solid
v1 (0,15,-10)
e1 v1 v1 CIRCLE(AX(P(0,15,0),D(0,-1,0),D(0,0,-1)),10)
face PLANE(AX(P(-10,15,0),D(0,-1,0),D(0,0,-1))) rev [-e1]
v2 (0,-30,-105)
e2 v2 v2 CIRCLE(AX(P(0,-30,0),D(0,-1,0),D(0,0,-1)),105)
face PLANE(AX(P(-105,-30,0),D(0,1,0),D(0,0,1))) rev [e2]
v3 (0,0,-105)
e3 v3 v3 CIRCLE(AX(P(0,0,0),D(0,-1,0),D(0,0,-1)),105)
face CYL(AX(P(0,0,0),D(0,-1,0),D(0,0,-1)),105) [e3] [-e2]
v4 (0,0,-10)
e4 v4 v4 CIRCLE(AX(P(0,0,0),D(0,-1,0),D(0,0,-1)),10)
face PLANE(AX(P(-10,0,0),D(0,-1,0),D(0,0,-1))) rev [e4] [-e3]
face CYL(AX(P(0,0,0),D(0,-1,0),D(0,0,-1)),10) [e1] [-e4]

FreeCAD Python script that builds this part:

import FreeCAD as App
import Part
import Sketcher

V = App.Vector
Q = App.Units.Quantity

doc = App.newDocument("Part")
body = doc.addObject("PartDesign::Body", "Body")

# Sketch on XY plane
sketch1 = body.newObject("Sketcher::SketchObject", "Sketch")
sketch1.AttachmentSupport = (doc.getObject("XY_Plane"), [""])
sketch1.MapMode = "FlatFace"
sketch1.addGeometry(Part.LineSegment(V(-10, 0, 0), V(-105, 0, 0)), False)
sketch1.addGeometry(Part.LineSegment(V(-105, 0, 0), V(-105, -30, 0)), False)
sketch1.addGeometry(Part.LineSegment(V(-105, -30, 0), V(0, -30, 0)), False)
sketch1.addGeometry(Part.LineSegment(V(0, -30, 0), V(0, 15, 0)), False)
sketch1.addGeometry(Part.LineSegment(V(0, 15, 0), V(-10, 15, 0)), False)
sketch1.addGeometry(Part.LineSegment(V(-10, 15, 0), V(-10, 0, 0)), False)
sketch1.addConstraint(Sketcher.Constraint("Coincident", 0, 2, 1, 1))
sketch1.addConstraint(Sketcher.Constraint("Coincident", 1, 2, 2, 1))
sketch1.addConstraint(Sketcher.Constraint("Coincident", 2, 2, 3, 1))
sketch1.addConstraint(Sketcher.Constraint("Coincident", 3, 2, 4, 1))
sketch1.addConstraint(Sketcher.Constraint("Coincident", 4, 2, 5, 1))
sketch1.addConstraint(Sketcher.Constraint("Coincident", 5, 2, 0, 1))
sketch1.addConstraint(Sketcher.Constraint("Horizontal", 0))
sketch1.addConstraint(Sketcher.Constraint("Vertical", 1))
sketch1.addConstraint(Sketcher.Constraint("Horizontal", 2))
sketch1.addConstraint(Sketcher.Constraint("Vertical", 3))
sketch1.addConstraint(Sketcher.Constraint("Horizontal", 4))
sketch1.addConstraint(Sketcher.Constraint("Vertical", 5))
sketch1.addConstraint(Sketcher.Constraint("PointOnObject", 0, 2, -1))
sketch1.addConstraint(Sketcher.Constraint("PointOnObject", 2, 2, -2))
sketch1.addConstraint(Sketcher.Constraint("DistanceX", 0, 2, 0, 1, Q("95 mm")))
sketch1.addConstraint(Sketcher.Constraint("DistanceX", 2, 1, 2, 2, Q("105 mm")))
sketch1.addConstraint(Sketcher.Constraint("DistanceY", 1, 2, 1, 1, Q("30 mm")))
sketch1.addConstraint(Sketcher.Constraint("DistanceY", 3, 1, 3, 2, Q("45 mm")))
revolution = body.newObject("PartDesign::Revolution", "Revolution")
revolution.Profile = sketch1
revolution.ReferenceAxis = (sketch1, ["V_Axis"])
revolution.Angle = 360

doc.recompute()
